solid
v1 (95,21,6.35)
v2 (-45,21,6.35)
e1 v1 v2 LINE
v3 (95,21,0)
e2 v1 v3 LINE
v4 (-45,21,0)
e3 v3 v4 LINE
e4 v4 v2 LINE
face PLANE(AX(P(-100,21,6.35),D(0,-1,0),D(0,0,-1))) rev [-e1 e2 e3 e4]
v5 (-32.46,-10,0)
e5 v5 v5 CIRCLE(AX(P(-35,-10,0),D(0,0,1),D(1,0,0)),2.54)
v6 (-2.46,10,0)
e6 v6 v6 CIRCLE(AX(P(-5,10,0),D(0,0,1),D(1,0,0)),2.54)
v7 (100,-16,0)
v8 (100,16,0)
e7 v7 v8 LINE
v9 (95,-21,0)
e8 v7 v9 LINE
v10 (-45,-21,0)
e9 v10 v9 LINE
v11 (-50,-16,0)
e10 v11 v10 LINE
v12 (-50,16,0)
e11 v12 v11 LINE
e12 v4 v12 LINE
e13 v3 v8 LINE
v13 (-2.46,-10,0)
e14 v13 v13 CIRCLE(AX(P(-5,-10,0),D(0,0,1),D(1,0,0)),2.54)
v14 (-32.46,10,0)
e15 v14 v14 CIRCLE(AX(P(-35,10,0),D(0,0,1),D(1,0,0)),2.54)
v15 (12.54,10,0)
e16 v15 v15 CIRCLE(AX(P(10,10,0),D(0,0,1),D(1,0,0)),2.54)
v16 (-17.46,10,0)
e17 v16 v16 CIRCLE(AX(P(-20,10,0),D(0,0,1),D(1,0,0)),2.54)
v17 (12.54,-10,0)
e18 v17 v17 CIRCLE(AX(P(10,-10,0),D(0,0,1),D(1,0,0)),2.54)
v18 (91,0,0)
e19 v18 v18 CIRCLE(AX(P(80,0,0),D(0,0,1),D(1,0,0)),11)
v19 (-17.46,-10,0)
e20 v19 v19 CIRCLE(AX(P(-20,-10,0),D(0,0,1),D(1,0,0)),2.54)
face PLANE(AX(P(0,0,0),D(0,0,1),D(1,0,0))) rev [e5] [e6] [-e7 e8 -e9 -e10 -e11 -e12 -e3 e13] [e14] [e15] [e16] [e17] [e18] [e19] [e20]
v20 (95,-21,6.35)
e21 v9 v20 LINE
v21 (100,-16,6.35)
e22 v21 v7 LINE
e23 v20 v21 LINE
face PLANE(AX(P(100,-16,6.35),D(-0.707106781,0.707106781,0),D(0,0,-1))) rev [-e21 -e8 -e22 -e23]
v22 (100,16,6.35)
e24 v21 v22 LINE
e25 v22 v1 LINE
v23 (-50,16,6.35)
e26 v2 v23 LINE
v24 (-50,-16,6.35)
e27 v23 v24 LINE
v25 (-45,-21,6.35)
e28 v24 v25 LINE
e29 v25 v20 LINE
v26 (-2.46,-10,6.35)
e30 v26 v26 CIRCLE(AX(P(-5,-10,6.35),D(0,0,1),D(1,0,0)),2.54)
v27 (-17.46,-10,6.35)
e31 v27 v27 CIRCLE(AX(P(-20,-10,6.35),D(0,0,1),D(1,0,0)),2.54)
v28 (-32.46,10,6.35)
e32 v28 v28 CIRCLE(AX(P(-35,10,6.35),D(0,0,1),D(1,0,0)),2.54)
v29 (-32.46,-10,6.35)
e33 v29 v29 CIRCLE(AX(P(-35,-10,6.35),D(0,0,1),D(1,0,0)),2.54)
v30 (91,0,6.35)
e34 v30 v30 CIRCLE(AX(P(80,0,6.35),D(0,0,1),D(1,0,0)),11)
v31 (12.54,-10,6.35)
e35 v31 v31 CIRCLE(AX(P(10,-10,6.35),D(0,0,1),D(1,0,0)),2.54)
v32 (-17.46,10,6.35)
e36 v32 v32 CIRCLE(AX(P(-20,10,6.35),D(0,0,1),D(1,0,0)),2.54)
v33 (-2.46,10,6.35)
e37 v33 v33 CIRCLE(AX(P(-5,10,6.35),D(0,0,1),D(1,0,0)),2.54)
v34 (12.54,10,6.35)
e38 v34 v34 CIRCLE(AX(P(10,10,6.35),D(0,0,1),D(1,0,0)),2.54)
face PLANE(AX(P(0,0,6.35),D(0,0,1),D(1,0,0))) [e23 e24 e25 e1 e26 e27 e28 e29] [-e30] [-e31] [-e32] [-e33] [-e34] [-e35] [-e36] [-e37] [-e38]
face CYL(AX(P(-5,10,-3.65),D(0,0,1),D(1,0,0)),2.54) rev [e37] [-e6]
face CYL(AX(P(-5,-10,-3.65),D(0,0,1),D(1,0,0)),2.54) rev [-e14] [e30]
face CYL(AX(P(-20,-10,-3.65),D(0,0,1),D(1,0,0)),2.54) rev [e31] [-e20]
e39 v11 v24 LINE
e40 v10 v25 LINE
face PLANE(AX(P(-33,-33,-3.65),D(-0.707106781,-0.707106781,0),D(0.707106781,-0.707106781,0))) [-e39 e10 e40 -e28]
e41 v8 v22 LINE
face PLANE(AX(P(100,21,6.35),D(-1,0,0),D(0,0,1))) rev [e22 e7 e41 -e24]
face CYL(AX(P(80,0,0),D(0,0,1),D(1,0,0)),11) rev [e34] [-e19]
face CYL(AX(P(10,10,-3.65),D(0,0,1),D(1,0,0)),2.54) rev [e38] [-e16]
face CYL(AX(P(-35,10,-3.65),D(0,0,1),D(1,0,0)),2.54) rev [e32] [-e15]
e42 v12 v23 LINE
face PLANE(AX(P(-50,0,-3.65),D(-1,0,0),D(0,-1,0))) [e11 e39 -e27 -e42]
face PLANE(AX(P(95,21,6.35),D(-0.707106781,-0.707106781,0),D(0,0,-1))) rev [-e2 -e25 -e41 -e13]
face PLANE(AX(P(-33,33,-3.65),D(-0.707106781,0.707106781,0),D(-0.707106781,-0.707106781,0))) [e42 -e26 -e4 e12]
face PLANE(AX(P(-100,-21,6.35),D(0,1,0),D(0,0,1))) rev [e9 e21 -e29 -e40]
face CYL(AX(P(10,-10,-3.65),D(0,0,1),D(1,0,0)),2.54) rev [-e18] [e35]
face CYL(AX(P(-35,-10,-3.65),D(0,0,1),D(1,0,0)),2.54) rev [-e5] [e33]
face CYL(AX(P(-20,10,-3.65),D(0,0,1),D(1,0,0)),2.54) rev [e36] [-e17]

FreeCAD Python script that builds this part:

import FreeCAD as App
import Part
import Sketcher

V = App.Vector
Q = App.Units.Quantity


def edges_at(feature, points):
    """Names of the edges that pass closest to the given points."""
    edges = feature.Shape.Edges
    near = lambda p: min(range(len(edges)), key=lambda i: edges[i].distToShape(Part.Vertex(*p))[0])
    return sorted({f"Edge{near(p) + 1}" for p in points})


def add_polygon(sketch, points):
    """Adds a closed chain of lines whose ends are joined by coincident constraints."""
    first, n = sketch.GeometryCount, len(points)
    for a, b in zip(points, points[1:] + points[:1]):
        sketch.addGeometry(Part.LineSegment(App.Vector(*a, 0), App.Vector(*b, 0)), False)
    for i in range(n):
        sketch.addConstraint(Sketcher.Constraint("Coincident", first + i, 2, first + (i + 1) % n, 1))

doc = App.newDocument("Part")
body = doc.addObject("PartDesign::Body", "Body")

# Sketch on XY plane
sketch1 = doc.addObject("Sketcher::SketchObject", "Sketch")
body.addObject(sketch1)
sketch1.AttachmentSupport = (doc.XY_Plane, [""])
sketch1.MapMode = "FlatFace"
add_polygon(sketch1, [(-100, 21), (-100, -21), (100, -21), (100, 21)])  # lines 0-3
sketch1.addConstraint([
    Sketcher.Constraint("Vertical", 0),
    Sketcher.Constraint("Horizontal", 1),
    Sketcher.Constraint("Vertical", 2),
    Sketcher.Constraint("Horizontal", 3),
    Sketcher.Constraint("Symmetric", 0, 2, 2, 2, -1, 1),
    Sketcher.Constraint("DistanceX", 1, 1, 1, 2, Q("200 mm")),
    Sketcher.Constraint("DistanceY", 0, 2, 0, 1, Q("42 mm")),
])
pad1 = doc.addObject("PartDesign::Pad", "Pad")
body.addObject(pad1)
pad1.Profile = sketch1
pad1.Length = 6.35

# Sketch on XY plane
sketch2 = doc.addObject("Sketcher::SketchObject", "Sketch001")
body.addObject(sketch2)
sketch2.AttachmentSupport = (doc.XY_Plane, [""])
sketch2.MapMode = "FlatFace"
sketch2.AttachmentOffset = App.Placement(V(0, 0, 6.35), App.Rotation())
sketch2.addGeometry(Part.Circle(V(-76, 0, 0), V(0, 0, 1), 2.286), False)
sketch2.addConstraint([
    Sketcher.Constraint("PointOnObject", 0, 3, -1),
    Sketcher.Constraint("Diameter", 0, Q("4.572 mm")),
    Sketcher.Constraint("DistanceX", 0, 3, -1, 1, Q("76 mm")),
])
pocket1 = doc.addObject("PartDesign::Pocket", "Pocket")
body.addObject(pocket1)
pocket1.Profile = sketch2
pocket1.Type = "ThroughAll"
doc.recompute()

chamfer = doc.addObject("PartDesign::Chamfer", "Chamfer")
body.addObject(chamfer)
chamfer.Base = (pocket1, edges_at(pocket1, [
    (100, -21, 3.175),
    (-100, -21, 3.175),
    (-100, 21, 3.175),
    (100, 21, 3.175),
]))
chamfer.Size = 5

# Sketch on XY plane
sketch3 = doc.addObject("Sketcher::SketchObject", "Sketch002")
body.addObject(sketch3)
sketch3.AttachmentSupport = (doc.XY_Plane, [""])
sketch3.MapMode = "FlatFace"
sketch3.AttachmentOffset = App.Placement(V(0, 0, 6.35), App.Rotation())
sketch3.addGeometry(Part.Circle(V(80, 0, 0), V(0, 0, 1), 11), False)
sketch3.addConstraint([
    Sketcher.Constraint("PointOnObject", 0, 3, -1),
    Sketcher.Constraint("Diameter", 0, Q("22 mm")),
    Sketcher.Constraint("DistanceX", -1, 1, 0, 3, Q("80 mm")),
])
pocket2 = doc.addObject("PartDesign::Pocket", "Pocket001")
body.addObject(pocket2)
pocket2.Profile = sketch3
pocket2.Type = "ThroughAll"

# Sketch on XY plane
sketch4 = doc.addObject("Sketcher::SketchObject", "Sketch003")
body.addObject(sketch4)
sketch4.AttachmentSupport = (doc.XY_Plane, [""])
sketch4.MapMode = "FlatFace"
sketch4.AttachmentOffset = App.Placement(V(0, 0, 6.35), App.Rotation())
sketch4.addGeometry(Part.Circle(V(-93, 0, 0), V(0, 0, 1), 2.286), False)
sketch4.addConstraint([
    Sketcher.Constraint("PointOnObject", 0, 3, -1),
    Sketcher.Constraint("Diameter", 0, Q("4.572 mm")),
    Sketcher.Constraint("DistanceX", 0, 3, -1, 1, Q("93 mm")),
])
pocket3 = doc.addObject("PartDesign::Pocket", "Pocket002")
body.addObject(pocket3)
pocket3.Profile = sketch4
pocket3.Type = "ThroughAll"

# Sketch on XY plane
sketch5 = doc.addObject("Sketcher::SketchObject", "Sketch004")
body.addObject(sketch5)
sketch5.AttachmentSupport = (doc.XY_Plane, [""])
sketch5.MapMode = "FlatFace"
sketch5.AttachmentOffset = App.Placement(V(0, 0, 6.35), App.Rotation())
add_polygon(sketch5, [(-50, -16), (-50, 16), (-45, 21), (-95, 21), (-100, 16), (-100, -16), (-95, -21), (-45, -21)])  # lines 0-7
sketch5.addGeometry(Part.Circle(V(-93, 0, 0), V(0, 0, 1), 2.286), False)  # 8
sketch5.addGeometry(Part.Circle(V(-76, 0, 0), V(0, 0, 1), 2.286), False)  # 9
sketch5.addGeometry(Part.Circle(V(-35, 10, 0), V(0, 0, 1), 2.54), False)  # 10
sketch5.addGeometry(Part.Circle(V(-35, -10, 0), V(0, 0, 1), 2.54), False)  # 11
sketch5.addGeometry(Part.Circle(V(-20, 10, 0), V(0, 0, 1), 2.54), False)  # 12
sketch5.addGeometry(Part.Circle(V(-20, -10, 0), V(0, 0, 1), 2.54), False)  # 13
sketch5.addGeometry(Part.Circle(V(-5, 10, 0), V(0, 0, 1), 2.54), False)  # 14
sketch5.addGeometry(Part.Circle(V(-5, -10, 0), V(0, 0, 1), 2.54), False)  # 15
sketch5.addGeometry(Part.Circle(V(10, 10, 0), V(0, 0, 1), 2.54), False)  # 16
sketch5.addGeometry(Part.Circle(V(10, -10, 0), V(0, 0, 1), 2.54), False)  # 17
sketch5.addConstraint([
    Sketcher.Constraint("Vertical", 0),
    Sketcher.Constraint("Horizontal", 2),
    Sketcher.Constraint("Vertical", 4),
    Sketcher.Constraint("Horizontal", 6),
    Sketcher.Constraint("Equal", 8, 9),
    Sketcher.Constraint("Equal", 10, 11),
    Sketcher.Constraint("Equal", 11, 12),
    Sketcher.Constraint("Equal", 12, 13),
    Sketcher.Constraint("Equal", 13, 14),
    Sketcher.Constraint("Equal", 14, 15),
    Sketcher.Constraint("Equal", 15, 16),
    Sketcher.Constraint("Equal", 16, 17),
    Sketcher.Constraint("Symmetric", 10, 3, 11, 3, -1),
    Sketcher.Constraint("Symmetric", 12, 3, 13, 3, -1),
    Sketcher.Constraint("Symmetric", 14, 3, 15, 3, -1),
    Sketcher.Constraint("Symmetric", 16, 3, 17, 3, -1),
    Sketcher.Constraint("Symmetric", 2, 2, 5, 2, -1),
    Sketcher.Constraint("PointOnObject", 8, 3, -1),
    Sketcher.Constraint("PointOnObject", 9, 3, -1),
    Sketcher.Constraint("Parallel", 1, 3),
    Sketcher.Constraint("Perpendicular", 3, 5),
    Sketcher.Constraint("Parallel", 5, 7),
    Sketcher.Constraint("Horizontal", 10, 3, 12, 3),
    Sketcher.Constraint("Horizontal", 12, 3, 14, 3),
    Sketcher.Constraint("Horizontal", 14, 3, 16, 3),
    Sketcher.Constraint("Horizontal", 0, 2, 3, 2),
    Sketcher.Constraint("Horizontal", 4, 2, 7, 2),
    Sketcher.Constraint("Equal", 3, 5),
    Sketcher.Constraint("Diameter", 10, Q("5.08 mm")),
    Sketcher.Constraint("DistanceX", 2, 2, 2, 1, Q("50 mm")),
    Sketcher.Constraint("DistanceY", 0, 1, 0, 2, Q("32 mm")),
    Sketcher.Constraint("Diameter", 8, Q("4.572 mm")),
    Sketcher.Constraint("DistanceX", 8, 3, -1, 1, Q("93 mm")),
    Sketcher.Constraint("DistanceX", 9, 3, -1, 1, Q("76 mm")),
    Sketcher.Constraint("DistanceX", 10, 3, -1, 1, Q("35 mm")),
    Sketcher.Constraint("DistanceY", -1, 1, 10, 3, Q("10 mm")),
    Sketcher.Constraint("DistanceX", 12, 3, -1, 1, Q("20 mm")),
    Sketcher.Constraint("DistanceX", 14, 3, -1, 1, Q("5 mm")),
    Sketcher.Constraint("DistanceX", -1, 1, 16, 3, Q("10 mm")),
    Sketcher.Constraint("DistanceX", 0, 2, -1, 1, Q("50 mm")),
    Sketcher.Constraint("DistanceX", 1, 2, -1, 1, Q("45 mm")),
])
pocket4 = doc.addObject("PartDesign::Pocket", "Pocket003")
body.addObject(pocket4)
pocket4.Profile = sketch5
pocket4.Length = 10

doc.recompute()
